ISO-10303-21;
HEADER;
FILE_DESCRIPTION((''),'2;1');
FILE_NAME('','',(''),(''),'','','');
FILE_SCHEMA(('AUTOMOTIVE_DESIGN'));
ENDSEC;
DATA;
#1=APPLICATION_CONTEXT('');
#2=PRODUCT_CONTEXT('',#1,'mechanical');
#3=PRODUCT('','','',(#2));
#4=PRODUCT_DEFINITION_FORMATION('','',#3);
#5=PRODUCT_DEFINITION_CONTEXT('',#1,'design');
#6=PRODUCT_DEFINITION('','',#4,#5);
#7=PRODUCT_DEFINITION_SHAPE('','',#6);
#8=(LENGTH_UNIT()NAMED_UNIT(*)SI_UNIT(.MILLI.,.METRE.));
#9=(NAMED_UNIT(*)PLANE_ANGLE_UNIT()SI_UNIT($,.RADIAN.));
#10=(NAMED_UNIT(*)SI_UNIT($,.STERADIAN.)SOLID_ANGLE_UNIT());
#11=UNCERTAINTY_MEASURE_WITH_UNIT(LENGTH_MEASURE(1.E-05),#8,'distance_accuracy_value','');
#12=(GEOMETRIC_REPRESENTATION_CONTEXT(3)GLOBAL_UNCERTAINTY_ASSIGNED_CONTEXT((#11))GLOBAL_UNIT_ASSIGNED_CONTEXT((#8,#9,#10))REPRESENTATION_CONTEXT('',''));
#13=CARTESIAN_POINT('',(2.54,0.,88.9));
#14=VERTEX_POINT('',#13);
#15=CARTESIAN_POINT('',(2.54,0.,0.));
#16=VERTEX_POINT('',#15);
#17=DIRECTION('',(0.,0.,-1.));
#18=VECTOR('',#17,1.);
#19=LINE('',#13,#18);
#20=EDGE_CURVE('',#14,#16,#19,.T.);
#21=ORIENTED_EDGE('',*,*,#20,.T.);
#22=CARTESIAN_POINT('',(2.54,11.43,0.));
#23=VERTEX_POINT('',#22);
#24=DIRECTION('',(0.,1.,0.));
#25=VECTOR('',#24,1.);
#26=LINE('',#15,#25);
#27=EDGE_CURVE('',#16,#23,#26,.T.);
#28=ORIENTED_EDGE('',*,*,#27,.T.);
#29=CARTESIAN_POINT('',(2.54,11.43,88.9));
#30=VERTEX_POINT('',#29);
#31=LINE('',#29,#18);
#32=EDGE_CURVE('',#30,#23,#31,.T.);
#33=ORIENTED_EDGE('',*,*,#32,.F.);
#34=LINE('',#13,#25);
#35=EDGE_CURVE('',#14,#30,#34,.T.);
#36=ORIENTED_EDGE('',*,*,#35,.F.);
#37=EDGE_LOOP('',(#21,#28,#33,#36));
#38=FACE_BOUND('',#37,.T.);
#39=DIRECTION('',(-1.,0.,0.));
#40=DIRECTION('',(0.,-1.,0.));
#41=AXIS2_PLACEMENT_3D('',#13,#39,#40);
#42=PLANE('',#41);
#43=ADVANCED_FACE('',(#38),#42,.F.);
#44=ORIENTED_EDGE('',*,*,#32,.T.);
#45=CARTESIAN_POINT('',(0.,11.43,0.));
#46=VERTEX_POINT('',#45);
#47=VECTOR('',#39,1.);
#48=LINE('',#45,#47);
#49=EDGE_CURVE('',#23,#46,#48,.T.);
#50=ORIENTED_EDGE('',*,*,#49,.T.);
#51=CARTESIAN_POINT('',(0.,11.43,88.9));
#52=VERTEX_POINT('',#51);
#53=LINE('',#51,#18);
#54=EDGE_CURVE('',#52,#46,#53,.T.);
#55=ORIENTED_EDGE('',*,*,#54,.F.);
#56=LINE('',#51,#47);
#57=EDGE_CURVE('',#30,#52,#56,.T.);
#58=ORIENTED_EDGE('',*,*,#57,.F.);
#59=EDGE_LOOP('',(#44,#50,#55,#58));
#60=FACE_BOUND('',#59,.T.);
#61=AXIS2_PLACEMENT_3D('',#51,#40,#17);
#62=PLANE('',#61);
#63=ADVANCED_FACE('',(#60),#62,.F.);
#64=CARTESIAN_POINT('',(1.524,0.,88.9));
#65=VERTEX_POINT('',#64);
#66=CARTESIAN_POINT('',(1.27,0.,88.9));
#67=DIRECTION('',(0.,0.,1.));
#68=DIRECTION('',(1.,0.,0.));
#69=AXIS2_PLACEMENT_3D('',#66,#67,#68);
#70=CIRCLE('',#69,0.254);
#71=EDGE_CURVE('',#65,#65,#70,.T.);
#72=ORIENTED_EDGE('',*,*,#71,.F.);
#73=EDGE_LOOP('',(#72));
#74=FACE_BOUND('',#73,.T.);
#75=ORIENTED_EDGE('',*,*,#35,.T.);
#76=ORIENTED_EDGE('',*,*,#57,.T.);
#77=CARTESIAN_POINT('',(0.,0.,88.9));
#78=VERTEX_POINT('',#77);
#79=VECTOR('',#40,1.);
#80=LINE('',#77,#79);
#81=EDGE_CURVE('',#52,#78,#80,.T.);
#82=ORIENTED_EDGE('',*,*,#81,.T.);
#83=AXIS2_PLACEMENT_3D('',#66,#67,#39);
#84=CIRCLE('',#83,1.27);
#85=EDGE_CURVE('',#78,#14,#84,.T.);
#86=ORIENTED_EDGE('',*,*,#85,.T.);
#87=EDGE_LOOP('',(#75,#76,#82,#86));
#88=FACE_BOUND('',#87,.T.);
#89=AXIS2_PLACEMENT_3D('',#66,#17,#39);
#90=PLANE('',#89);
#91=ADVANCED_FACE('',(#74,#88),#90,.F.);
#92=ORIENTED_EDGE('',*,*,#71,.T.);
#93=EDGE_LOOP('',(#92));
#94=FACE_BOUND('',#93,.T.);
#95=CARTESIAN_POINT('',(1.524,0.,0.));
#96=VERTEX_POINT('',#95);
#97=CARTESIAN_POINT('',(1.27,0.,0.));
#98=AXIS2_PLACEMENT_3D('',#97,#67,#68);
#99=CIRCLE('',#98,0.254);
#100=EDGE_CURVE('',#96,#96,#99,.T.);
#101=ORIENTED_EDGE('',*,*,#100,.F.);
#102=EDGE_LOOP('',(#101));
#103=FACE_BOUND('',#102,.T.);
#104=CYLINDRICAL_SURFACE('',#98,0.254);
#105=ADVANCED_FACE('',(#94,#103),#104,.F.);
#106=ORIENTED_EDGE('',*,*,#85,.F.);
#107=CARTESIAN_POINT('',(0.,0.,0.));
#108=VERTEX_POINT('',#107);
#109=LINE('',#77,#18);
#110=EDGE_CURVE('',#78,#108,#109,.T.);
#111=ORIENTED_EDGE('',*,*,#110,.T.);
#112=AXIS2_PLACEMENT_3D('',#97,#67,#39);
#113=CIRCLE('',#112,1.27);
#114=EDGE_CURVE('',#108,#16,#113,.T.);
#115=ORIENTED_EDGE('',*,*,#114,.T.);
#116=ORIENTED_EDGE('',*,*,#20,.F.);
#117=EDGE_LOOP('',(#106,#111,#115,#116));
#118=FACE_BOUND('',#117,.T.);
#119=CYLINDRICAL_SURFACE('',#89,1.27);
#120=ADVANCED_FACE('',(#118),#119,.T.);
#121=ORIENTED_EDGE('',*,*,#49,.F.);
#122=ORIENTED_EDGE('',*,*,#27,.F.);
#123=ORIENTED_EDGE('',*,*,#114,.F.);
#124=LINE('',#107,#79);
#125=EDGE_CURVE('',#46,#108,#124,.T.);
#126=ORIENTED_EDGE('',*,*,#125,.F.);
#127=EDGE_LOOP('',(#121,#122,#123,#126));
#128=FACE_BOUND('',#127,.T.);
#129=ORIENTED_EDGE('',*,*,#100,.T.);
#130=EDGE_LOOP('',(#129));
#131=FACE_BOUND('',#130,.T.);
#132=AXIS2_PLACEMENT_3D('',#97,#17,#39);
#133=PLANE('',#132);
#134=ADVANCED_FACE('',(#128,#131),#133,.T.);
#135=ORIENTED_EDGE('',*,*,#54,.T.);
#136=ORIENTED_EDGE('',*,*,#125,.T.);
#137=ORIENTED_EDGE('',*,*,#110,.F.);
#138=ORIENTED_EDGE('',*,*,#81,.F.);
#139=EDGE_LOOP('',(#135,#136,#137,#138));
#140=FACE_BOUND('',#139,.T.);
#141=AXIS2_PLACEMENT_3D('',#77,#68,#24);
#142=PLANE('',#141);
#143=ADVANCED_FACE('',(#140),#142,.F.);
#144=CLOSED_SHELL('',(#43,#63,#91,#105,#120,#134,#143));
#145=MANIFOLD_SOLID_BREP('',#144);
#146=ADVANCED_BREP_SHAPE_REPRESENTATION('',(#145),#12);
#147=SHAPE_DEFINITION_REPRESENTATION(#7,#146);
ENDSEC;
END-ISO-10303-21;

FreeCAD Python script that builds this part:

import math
import FreeCAD as App
import Part
import Sketcher

V = App.Vector
Q = App.Units.Quantity

doc = App.newDocument("Part")
body = doc.addObject("PartDesign::Body", "Body")

# Sketch on XY plane
sketch1 = body.newObject("Sketcher::SketchObject", "Sketch")
sketch1.AttachmentSupport = (doc.getObject("XY_Plane"), [""])
sketch1.MapMode = "FlatFace"
sketch1.addGeometry([
    Part.LineSegment(V(0, 11.4, 0), V(0, 0, 0)),
    Part.ArcOfCircle(Part.Circle(V(1.3, 0, 0), V(0, 0, 1), 1.3), math.radians(180), math.radians(360)),
    Part.LineSegment(V(2.5, 0, 0), V(2.5, 11.4, 0)),
    Part.LineSegment(V(2.5, 11.4, 0), V(0, 11.4, 0)),
], False)
sketch1.addConstraint([
    Sketcher.Constraint("Tangent", 0, 2, 1, 1),
    Sketcher.Constraint("Tangent", 1, 2, 2, 1),
    Sketcher.Constraint("Coincident", 2, 2, 3, 1),
    Sketcher.Constraint("Coincident", 3, 2, 0, 1),
    Sketcher.Constraint("Vertical", 0),
    Sketcher.Constraint("Vertical", 2),
    Sketcher.Constraint("Horizontal", 3),
    Sketcher.Constraint("Coincident", 0, 2, -1, 1),
    Sketcher.Constraint("Radius", 1, Q("0.05 in")),
    Sketcher.Constraint("DistanceY", 0, 2, 0, 1, Q("0.45 in")),
])
pad1 = body.newObject("PartDesign::Pad", "Pad")
pad1.Profile = sketch1
pad1.Length = Q("3.5 in")

# Sketch on XY plane
sketch2 = body.newObject("Sketcher::SketchObject", "Sketch001")
sketch2.AttachmentSupport = (doc.getObject("XY_Plane"), [""])
sketch2.MapMode = "FlatFace"
sketch2.AttachmentOffset = App.Placement(V(0, 0, 3.5 * 25.4), App.Rotation())
sketch2.addGeometry(Part.Circle(V(1.27, 0, 0), V(0, 0, 1), 0.25), False)
sketch2.addConstraint([
    Sketcher.Constraint("PointOnObject", 0, 3, -1),
    Sketcher.Constraint("Diameter", 0, Q("0.02 in")),
    Sketcher.Constraint("DistanceX", -1, 1, 0, 3, Q("0.05 in")),
])
pocket1 = body.newObject("PartDesign::Pocket", "Pocket")
pocket1.Profile = sketch2
pocket1.Type = "ThroughAll"

doc.recompute()
